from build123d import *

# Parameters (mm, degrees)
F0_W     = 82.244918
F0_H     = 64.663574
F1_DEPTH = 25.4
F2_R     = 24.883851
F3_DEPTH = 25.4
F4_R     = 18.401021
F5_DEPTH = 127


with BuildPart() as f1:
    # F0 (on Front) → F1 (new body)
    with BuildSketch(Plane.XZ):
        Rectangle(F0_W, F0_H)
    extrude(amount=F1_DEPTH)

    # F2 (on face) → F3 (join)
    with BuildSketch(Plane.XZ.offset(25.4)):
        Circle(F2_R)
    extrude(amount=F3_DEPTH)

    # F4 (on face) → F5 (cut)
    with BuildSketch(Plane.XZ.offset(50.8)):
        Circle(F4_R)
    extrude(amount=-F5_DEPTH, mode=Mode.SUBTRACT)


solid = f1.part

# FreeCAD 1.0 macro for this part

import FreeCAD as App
import Part
import Sketcher
Q = App.Units.Quantity

doc = App.newDocument("Part")
body = doc.addObject("PartDesign::Body", "Body")

# Sketch on XZ plane
sketch1 = body.newObject("Sketcher::SketchObject", "Sketch")
sketch1.AttachmentSupport = (doc.getObject("XZ_Plane"), [""])
sketch1.MapMode = "FlatFace"
sketch1.addGeometry([
    Part.LineSegment(App.Vector(-41, 32, 0), App.Vector(-41, -32, 0)),
    Part.LineSegment(App.Vector(-41, -32, 0), App.Vector(41, -32, 0)),
    Part.LineSegment(App.Vector(41, -32, 0), App.Vector(41, 32, 0)),
    Part.LineSegment(App.Vector(41, 32, 0), App.Vector(-41, 32, 0)),
], False)
sketch1.addConstraint([
    Sketcher.Constraint("Coincident", 0, 2, 1, 1),
    Sketcher.Constraint("Coincident", 1, 2, 2, 1),
    Sketcher.Constraint("Coincident", 2, 2, 3, 1),
    Sketcher.Constraint("Coincident", 3, 2, 0, 1),
    Sketcher.Constraint("Vertical", 0),
    Sketcher.Constraint("Horizontal", 1),
    Sketcher.Constraint("Vertical", 2),
    Sketcher.Constraint("Horizontal", 3),
    Sketcher.Constraint("Symmetric", 0, 2, 2, 2, -1, 1),
    Sketcher.Constraint("DistanceX", 1, 1, 1, 2, Q("82.244918 mm")),
    Sketcher.Constraint("DistanceY", 0, 2, 0, 1, Q("64.663574 mm")),
])
pad1 = body.newObject("PartDesign::Pad", "Pad")
pad1.Profile = sketch1
pad1.Length = Q("1 in")

# Sketch on XZ plane
sketch2 = body.newObject("Sketcher::SketchObject", "Sketch001")
sketch2.AttachmentSupport = (doc.getObject("XZ_Plane"), [""])
sketch2.MapMode = "FlatFace"
sketch2.AttachmentOffset = App.Placement(App.Vector(0, 0, 1 * 25.4), App.Rotation())
sketch2.addGeometry(Part.Circle(App.Vector(0, 0, 0), App.Vector(0, 0, 1), 25), False)
sketch2.addConstraint([
    Sketcher.Constraint("Coincident", 0, 3, -1, 1),
    Sketcher.Constraint("Diameter", 0, Q("49.767702 mm")),
])
pad2 = body.newObject("PartDesign::Pad", "Pad001")
pad2.Profile = sketch2
pad2.Length = Q("1 in")

# Sketch on XZ plane
sketch3 = body.newObject("Sketcher::SketchObject", "Sketch002")
sketch3.AttachmentSupport = (doc.getObject("XZ_Plane"), [""])
sketch3.MapMode = "FlatFace"
sketch3.AttachmentOffset = App.Placement(App.Vector(0, 0, 2 * 25.4), App.Rotation())
sketch3.addGeometry(Part.Circle(App.Vector(0, 0, 0), App.Vector(0, 0, 1), 18), False)
sketch3.addConstraint([
    Sketcher.Constraint("Coincident", 0, 3, -1, 1),
    Sketcher.Constraint("Diameter", 0, Q("36.802042 mm")),
])
pocket1 = body.newObject("PartDesign::Pocket", "Pocket")
pocket1.Profile = sketch3
pocket1.Length = Q("5 in")

doc.recompute()
